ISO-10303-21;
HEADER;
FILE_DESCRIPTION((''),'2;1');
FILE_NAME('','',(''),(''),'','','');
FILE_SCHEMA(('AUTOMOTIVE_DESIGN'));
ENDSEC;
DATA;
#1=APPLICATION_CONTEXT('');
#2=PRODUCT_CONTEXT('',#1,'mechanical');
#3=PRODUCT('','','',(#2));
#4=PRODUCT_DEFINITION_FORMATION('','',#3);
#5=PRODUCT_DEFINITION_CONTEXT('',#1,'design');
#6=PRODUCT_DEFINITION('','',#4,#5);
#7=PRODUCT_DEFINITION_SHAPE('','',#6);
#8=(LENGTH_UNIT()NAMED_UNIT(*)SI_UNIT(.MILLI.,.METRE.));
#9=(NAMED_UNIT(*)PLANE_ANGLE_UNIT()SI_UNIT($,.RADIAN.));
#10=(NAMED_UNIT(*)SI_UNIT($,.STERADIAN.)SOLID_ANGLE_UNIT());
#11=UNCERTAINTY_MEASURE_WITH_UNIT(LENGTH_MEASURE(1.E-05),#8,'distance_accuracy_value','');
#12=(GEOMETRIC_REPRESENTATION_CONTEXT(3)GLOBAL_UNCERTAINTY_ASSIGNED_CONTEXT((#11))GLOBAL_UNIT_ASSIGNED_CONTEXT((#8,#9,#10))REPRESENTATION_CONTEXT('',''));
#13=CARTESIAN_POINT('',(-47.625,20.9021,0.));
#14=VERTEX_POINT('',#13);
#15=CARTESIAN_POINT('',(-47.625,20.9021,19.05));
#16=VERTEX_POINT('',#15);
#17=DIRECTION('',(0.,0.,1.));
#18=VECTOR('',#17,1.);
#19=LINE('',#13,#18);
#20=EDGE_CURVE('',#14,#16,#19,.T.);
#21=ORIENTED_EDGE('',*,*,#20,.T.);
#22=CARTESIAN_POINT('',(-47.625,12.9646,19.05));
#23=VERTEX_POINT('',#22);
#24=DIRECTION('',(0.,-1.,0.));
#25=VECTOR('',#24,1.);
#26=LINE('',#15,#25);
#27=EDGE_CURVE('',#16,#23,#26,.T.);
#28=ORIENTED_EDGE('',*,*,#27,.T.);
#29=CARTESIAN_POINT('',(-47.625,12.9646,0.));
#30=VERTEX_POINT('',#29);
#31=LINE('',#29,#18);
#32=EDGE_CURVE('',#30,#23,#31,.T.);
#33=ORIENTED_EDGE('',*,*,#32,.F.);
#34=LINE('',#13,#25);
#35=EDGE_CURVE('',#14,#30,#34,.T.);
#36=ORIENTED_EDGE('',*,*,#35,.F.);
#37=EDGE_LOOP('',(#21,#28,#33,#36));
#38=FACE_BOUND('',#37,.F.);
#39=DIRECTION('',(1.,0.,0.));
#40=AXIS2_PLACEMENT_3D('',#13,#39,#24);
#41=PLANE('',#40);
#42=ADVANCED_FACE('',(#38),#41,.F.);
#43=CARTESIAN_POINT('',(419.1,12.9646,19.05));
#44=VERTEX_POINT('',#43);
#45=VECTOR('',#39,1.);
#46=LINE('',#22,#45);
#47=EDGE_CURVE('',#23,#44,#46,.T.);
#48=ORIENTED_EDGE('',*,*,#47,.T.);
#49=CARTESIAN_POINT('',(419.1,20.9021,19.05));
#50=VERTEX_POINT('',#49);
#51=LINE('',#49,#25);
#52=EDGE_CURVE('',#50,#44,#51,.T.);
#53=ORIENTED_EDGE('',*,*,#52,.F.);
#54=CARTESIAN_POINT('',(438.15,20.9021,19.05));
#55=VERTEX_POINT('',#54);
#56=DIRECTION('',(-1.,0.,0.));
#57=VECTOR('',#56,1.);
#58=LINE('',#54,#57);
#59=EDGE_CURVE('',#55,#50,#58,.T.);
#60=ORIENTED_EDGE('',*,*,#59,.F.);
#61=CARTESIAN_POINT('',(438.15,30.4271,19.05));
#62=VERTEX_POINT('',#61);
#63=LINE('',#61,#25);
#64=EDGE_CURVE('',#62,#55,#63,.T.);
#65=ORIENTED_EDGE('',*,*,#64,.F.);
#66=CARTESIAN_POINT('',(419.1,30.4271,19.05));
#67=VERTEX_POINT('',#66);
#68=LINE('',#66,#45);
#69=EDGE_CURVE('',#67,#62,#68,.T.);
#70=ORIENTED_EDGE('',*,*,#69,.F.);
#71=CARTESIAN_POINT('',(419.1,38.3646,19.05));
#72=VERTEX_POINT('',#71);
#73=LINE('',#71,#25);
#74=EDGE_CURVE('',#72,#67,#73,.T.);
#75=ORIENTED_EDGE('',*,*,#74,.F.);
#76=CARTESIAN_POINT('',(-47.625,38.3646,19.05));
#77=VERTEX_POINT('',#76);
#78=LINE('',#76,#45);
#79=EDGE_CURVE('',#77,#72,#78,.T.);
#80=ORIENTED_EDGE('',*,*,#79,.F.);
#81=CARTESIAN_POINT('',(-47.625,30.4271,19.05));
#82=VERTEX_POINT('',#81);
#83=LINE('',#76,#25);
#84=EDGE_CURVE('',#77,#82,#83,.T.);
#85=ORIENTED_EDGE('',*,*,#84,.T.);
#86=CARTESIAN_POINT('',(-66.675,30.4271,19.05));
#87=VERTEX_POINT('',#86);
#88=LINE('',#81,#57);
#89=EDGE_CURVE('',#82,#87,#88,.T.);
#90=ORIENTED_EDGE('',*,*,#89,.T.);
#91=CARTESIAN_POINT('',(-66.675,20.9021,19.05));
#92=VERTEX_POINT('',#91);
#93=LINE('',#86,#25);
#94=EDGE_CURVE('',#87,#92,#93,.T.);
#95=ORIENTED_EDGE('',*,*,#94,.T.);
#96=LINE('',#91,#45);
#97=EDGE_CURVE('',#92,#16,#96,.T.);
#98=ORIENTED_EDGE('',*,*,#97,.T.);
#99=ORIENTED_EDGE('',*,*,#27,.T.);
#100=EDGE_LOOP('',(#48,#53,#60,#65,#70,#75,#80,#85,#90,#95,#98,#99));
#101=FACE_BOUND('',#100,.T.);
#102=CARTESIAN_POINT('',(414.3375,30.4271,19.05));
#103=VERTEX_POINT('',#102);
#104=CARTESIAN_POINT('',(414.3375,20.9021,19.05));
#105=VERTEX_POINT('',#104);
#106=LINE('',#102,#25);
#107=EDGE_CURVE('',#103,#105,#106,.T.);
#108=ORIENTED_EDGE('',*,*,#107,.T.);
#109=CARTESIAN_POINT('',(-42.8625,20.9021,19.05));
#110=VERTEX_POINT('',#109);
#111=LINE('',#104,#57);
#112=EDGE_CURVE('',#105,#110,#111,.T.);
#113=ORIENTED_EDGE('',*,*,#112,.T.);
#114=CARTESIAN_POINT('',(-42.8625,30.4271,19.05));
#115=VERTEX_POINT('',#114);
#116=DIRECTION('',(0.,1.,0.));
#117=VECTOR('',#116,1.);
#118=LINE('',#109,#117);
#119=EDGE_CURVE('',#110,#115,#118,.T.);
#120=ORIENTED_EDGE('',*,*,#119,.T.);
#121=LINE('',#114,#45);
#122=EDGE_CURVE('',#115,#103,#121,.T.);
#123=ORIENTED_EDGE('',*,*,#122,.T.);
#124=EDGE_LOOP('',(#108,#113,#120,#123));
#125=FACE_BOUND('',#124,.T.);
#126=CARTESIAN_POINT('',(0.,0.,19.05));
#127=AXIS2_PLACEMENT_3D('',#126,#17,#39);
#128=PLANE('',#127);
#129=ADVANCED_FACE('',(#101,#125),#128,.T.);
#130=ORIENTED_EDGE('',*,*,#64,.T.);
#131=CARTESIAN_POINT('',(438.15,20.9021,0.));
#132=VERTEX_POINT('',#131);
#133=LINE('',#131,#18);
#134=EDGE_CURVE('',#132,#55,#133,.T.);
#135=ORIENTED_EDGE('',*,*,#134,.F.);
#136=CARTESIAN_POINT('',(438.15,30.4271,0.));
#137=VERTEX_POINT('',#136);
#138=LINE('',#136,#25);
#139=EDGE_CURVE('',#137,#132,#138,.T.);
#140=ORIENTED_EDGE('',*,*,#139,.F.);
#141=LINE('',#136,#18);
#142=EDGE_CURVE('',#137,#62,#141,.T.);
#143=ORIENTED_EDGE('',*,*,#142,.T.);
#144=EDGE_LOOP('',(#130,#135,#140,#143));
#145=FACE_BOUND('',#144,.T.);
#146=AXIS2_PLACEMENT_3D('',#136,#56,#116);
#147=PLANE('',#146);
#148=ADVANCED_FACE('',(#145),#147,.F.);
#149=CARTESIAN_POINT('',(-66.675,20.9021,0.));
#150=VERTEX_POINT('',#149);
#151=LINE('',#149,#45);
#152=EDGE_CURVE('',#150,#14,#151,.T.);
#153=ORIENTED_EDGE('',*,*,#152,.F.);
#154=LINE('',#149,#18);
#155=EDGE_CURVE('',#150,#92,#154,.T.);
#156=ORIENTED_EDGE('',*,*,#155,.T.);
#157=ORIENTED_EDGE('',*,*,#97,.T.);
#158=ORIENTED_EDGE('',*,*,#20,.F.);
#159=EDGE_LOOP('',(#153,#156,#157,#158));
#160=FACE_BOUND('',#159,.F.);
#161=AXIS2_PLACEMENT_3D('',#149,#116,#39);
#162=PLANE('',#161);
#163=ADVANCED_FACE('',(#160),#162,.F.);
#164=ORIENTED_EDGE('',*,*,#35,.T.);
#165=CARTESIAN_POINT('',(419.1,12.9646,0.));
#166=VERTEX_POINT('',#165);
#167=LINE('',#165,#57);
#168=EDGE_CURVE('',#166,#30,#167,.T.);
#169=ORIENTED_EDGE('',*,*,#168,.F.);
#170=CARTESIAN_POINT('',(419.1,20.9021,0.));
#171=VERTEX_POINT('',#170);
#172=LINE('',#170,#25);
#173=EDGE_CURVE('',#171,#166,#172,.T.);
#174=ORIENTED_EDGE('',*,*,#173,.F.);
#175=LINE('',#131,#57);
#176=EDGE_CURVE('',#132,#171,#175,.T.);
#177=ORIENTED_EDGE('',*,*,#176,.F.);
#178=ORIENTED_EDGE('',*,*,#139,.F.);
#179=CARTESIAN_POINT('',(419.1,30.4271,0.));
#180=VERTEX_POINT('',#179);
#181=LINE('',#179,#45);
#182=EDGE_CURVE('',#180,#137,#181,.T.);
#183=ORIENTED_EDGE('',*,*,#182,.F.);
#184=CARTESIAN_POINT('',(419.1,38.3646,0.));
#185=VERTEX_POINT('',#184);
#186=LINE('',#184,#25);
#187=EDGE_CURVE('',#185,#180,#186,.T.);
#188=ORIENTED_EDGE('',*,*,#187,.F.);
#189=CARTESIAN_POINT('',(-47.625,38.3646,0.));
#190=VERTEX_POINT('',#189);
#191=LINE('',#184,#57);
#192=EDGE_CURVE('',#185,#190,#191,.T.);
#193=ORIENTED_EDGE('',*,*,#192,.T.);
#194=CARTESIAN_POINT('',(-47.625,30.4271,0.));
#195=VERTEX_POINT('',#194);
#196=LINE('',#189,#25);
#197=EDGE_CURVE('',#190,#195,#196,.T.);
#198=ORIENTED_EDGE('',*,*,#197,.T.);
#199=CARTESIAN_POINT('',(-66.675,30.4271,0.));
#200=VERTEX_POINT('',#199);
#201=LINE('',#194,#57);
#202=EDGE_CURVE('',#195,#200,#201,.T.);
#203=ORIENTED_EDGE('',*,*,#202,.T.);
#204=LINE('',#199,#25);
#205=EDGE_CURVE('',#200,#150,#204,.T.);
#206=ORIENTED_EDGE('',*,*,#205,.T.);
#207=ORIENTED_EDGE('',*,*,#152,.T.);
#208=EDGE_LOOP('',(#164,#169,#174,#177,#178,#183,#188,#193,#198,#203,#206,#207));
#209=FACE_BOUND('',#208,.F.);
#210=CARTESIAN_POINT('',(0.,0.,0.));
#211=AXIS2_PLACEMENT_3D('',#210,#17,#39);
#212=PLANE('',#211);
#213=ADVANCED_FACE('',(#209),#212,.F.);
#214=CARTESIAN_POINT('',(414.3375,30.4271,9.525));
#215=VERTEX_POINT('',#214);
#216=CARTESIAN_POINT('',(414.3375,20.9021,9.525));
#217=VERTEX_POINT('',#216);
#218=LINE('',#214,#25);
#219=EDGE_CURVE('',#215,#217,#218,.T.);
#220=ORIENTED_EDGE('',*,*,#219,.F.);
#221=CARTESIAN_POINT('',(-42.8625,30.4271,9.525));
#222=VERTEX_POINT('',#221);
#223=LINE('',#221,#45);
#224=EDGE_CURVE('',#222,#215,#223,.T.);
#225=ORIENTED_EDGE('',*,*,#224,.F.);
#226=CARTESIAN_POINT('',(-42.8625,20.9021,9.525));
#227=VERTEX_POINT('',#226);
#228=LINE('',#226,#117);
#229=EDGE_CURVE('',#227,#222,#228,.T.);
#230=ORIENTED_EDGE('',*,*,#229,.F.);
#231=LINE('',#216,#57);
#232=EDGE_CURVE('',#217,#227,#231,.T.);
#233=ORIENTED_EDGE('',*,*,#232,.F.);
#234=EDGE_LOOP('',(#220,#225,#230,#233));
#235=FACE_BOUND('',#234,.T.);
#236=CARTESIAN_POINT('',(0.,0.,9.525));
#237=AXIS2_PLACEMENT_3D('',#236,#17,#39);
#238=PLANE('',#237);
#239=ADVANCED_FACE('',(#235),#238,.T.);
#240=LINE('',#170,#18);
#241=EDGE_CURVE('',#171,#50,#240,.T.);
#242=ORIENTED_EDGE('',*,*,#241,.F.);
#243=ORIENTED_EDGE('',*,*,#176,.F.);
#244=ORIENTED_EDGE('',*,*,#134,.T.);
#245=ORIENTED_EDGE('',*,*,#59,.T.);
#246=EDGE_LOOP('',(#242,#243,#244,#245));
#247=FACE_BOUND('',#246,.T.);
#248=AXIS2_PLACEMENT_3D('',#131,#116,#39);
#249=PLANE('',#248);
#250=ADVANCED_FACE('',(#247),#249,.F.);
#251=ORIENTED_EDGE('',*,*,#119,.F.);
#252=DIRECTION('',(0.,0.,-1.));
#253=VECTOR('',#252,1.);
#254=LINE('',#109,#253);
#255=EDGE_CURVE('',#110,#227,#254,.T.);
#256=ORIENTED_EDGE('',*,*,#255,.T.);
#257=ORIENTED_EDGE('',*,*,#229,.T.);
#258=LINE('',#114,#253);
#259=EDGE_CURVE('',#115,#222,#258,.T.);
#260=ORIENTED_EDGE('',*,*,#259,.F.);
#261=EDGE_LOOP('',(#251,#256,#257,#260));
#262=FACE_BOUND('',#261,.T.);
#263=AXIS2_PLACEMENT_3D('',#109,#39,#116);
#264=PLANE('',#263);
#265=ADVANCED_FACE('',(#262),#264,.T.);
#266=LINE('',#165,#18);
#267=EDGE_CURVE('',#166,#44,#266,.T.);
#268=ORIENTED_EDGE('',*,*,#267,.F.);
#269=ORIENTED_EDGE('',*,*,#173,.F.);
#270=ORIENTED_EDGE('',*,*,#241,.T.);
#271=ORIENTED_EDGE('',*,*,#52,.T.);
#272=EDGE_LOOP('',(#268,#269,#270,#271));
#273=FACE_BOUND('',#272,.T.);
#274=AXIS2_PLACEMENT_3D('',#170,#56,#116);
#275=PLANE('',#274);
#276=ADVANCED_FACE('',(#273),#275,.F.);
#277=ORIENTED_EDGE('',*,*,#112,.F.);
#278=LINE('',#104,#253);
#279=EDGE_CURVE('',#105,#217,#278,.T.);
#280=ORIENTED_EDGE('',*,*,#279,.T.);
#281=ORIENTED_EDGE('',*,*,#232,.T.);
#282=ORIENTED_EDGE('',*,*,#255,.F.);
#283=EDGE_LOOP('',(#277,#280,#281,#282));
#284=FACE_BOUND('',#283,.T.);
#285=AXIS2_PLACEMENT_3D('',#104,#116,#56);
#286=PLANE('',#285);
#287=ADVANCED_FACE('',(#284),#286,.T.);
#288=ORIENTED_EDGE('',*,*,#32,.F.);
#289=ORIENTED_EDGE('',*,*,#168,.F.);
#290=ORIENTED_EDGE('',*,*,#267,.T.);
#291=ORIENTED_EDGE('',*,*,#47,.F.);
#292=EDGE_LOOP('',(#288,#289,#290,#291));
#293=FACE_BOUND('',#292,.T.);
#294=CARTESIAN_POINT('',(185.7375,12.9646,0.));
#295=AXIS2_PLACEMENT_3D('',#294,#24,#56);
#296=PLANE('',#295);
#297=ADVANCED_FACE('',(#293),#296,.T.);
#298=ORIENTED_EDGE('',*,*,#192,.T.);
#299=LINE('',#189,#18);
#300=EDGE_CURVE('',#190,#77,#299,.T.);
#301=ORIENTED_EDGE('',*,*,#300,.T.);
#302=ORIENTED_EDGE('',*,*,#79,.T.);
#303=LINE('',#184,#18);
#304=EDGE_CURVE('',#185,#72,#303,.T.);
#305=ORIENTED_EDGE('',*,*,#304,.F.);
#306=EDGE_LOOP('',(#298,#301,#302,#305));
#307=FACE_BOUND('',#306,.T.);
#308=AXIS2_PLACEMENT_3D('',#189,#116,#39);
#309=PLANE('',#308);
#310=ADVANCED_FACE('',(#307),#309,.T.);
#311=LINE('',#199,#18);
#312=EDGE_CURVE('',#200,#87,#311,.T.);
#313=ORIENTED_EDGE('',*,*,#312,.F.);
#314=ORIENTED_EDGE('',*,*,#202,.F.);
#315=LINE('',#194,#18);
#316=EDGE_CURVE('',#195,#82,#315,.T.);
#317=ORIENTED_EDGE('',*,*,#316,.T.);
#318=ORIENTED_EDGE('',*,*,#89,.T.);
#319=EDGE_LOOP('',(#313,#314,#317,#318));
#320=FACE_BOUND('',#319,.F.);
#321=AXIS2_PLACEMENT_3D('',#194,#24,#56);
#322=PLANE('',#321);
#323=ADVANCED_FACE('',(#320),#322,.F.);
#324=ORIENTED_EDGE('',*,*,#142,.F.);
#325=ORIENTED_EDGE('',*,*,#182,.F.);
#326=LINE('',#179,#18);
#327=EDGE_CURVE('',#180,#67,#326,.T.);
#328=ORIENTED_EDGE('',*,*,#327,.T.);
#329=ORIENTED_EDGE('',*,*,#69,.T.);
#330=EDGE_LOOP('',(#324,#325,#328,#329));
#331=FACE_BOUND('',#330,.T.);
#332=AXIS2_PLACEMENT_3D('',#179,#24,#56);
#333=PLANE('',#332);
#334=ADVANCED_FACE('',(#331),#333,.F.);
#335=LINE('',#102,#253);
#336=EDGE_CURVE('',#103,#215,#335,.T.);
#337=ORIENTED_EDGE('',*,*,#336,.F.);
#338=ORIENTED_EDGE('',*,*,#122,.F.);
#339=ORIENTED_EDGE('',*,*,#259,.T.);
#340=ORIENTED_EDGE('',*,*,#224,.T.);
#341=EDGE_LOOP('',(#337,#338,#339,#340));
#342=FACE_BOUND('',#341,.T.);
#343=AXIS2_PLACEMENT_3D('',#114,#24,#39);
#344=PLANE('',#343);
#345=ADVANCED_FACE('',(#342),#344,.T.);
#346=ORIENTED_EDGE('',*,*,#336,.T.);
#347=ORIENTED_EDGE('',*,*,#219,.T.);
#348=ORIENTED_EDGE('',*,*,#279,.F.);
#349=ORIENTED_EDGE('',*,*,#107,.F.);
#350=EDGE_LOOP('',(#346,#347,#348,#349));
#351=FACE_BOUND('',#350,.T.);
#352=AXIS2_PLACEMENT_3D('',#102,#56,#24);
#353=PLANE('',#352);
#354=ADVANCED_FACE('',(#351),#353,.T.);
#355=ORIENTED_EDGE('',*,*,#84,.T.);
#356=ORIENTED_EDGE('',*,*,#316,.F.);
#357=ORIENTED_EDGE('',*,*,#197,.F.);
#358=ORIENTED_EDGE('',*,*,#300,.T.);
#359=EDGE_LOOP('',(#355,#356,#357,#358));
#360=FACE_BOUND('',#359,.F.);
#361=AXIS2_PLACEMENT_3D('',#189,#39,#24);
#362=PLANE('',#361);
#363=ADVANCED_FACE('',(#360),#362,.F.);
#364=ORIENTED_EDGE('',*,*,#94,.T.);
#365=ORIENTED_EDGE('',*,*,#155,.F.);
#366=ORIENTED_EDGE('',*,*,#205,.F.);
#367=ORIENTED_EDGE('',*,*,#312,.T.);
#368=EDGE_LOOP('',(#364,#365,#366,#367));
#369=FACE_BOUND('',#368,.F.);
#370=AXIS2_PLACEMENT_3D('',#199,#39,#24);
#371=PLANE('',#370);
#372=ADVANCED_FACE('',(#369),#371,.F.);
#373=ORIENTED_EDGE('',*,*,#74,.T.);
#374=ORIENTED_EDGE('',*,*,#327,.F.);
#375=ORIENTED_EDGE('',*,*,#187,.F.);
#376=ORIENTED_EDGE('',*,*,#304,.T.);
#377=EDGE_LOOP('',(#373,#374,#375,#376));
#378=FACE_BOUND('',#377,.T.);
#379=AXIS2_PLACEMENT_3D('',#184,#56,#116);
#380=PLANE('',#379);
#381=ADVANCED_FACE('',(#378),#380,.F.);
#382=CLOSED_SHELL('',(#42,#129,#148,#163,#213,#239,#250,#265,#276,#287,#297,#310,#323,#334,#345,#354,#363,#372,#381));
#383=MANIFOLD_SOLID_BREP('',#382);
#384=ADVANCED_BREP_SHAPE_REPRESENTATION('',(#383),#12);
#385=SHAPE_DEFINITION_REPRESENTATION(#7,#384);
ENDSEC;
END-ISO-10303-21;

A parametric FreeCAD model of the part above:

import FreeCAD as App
import Part
import Sketcher

V = App.Vector
Q = App.Units.Quantity

doc = App.newDocument("Part")
params = doc.addObject("Spreadsheet::Sheet", "Params")
for row, (alias, value) in enumerate([
    ("sketch1_height", "1 in"),
    ("sketch1_width", "0.75 in"),
    ("sketch1_height2", "0.3125 in"),
    ("pad1_length", "0.75 in"),
    ("sketch2_width", "18 in"),
    ("sketch2_height", "0.375 in"),
    ("pocket1_length", "0.375 in"),
], start=1):
    params.set(f"A{row}", alias)
    params.set(f"B{row}", "=" + value)
    params.setAlias(f"B{row}", alias)

body = doc.addObject("PartDesign::Body", "Body")

# Sketch on XY plane
sketch1 = body.newObject("Sketcher::SketchObject", "Sketch")
sketch1.AttachmentSupport = (doc.getObject("XY_Plane"), [""])
sketch1.MapMode = "FlatFace"
sketch1.addGeometry([
    Part.LineSegment(V(186, 38, 0), V(-48, 38, 0)),  # 0
    Part.LineSegment(V(-48, 38, 0), V(-48, 30, 0)),  # 1
    Part.LineSegment(V(-48, 30, 0), V(-67, 30, 0)),  # 2
    Part.LineSegment(V(-67, 30, 0), V(-67, 21, 0)),  # 3
    Part.LineSegment(V(-67, 21, 0), V(-48, 21, 0)),  # 4
    Part.LineSegment(V(-48, 21, 0), V(-48, 13, 0)),  # 5
    Part.LineSegment(V(-48, 13, 0), V(186, 13, 0)),  # 6
    Part.LineSegment(V(186, 13, 0), V(186, 38, 0)),  # 7
], False)
sketch1.addConstraint([
    Sketcher.Constraint("Coincident", 0, 2, 1, 1),
    Sketcher.Constraint("Coincident", 1, 2, 2, 1),
    Sketcher.Constraint("Coincident", 2, 2, 3, 1),
    Sketcher.Constraint("Coincident", 3, 2, 4, 1),
    Sketcher.Constraint("Coincident", 4, 2, 5, 1),
    Sketcher.Constraint("Coincident", 5, 2, 6, 1),
    Sketcher.Constraint("Coincident", 6, 2, 7, 1),
    Sketcher.Constraint("Coincident", 7, 2, 0, 1),
    Sketcher.Constraint("Horizontal", 0),
    Sketcher.Constraint("Vertical", 1),
    Sketcher.Constraint("Horizontal", 2),
    Sketcher.Constraint("Vertical", 3),
    Sketcher.Constraint("Horizontal", 4),
    Sketcher.Constraint("Vertical", 5),
    Sketcher.Constraint("Horizontal", 6),
    Sketcher.Constraint("Vertical", 7),
    Sketcher.Constraint("Vertical", 1, 2, 4, 2),
    Sketcher.Constraint("Equal", 1, 5),
    Sketcher.Constraint("DistanceY", 7, 1, 7, 2, Q("1 in")),
    Sketcher.Constraint("DistanceX", 2, 2, 2, 1, Q("0.75 in")),
    Sketcher.Constraint("DistanceY", 1, 2, 1, 1, Q("0.3125 in")),
    Sketcher.Constraint("DistanceX", 3, 2, 6, 2, Q("9.9375 in")),
    Sketcher.Constraint("DistanceX", 0, 2, -1, 1, Q("1.875 in")),
    Sketcher.Constraint("DistanceY", -1, 1, 0, 2, 38.3646),
])
sketch1.setExpression("Constraints[18]", "Params.sketch1_height")
sketch1.setExpression("Constraints[19]", "Params.sketch1_width")
sketch1.setExpression("Constraints[20]", "Params.sketch1_height2")
pad1 = body.newObject("PartDesign::Pad", "Pad")
pad1.Profile = sketch1
pad1.setExpression("Length", "Params.pad1_length")
doc.recompute()

datumplane = body.newObject("PartDesign::Plane", "DatumPlane")
datumplane.AttachmentSupport = (doc.getObject("YZ_Plane"), [""])
datumplane.MapMode = "FlatFace"
datumplane.AttachmentOffset = App.Placement(V(0, 0, 7.3125 * 25.4), App.Rotation())
mirrored = body.newObject("PartDesign::Mirrored", "Mirrored")
mirrored.Originals = [pad1]
mirrored.MirrorPlane = (datumplane, [""])
body.Tip = mirrored

# Sketch on XY plane
sketch2 = body.newObject("Sketcher::SketchObject", "Sketch001")
sketch2.AttachmentSupport = (doc.getObject("XY_Plane"), [""])
sketch2.MapMode = "FlatFace"
sketch2.AttachmentOffset = App.Placement(V(0, 0, 0.75 * 25.4), App.Rotation())
sketch2.addGeometry([
    Part.LineSegment(V(414, 30, 0), V(-43, 30, 0)),
    Part.LineSegment(V(-43, 30, 0), V(-43, 21, 0)),
    Part.LineSegment(V(-43, 21, 0), V(414, 21, 0)),
    Part.LineSegment(V(414, 21, 0), V(414, 30, 0)),
], False)
sketch2.addConstraint([
    Sketcher.Constraint("Coincident", 0, 2, 1, 1),
    Sketcher.Constraint("Coincident", 1, 2, 2, 1),
    Sketcher.Constraint("Coincident", 2, 2, 3, 1),
    Sketcher.Constraint("Coincident", 3, 2, 0, 1),
    Sketcher.Constraint("Horizontal", 0),
    Sketcher.Constraint("Vertical", 1),
    Sketcher.Constraint("Horizontal", 2),
    Sketcher.Constraint("Vertical", 3),
    Sketcher.Constraint("DistanceX", 0, 2, 0, 1, Q("18 in")),
    Sketcher.Constraint("DistanceY", 1, 2, 1, 1, Q("0.375 in")),
    Sketcher.Constraint("DistanceX", 0, 2, -1, 1, Q("1.6875 in")),
    Sketcher.Constraint("DistanceY", -1, 1, 0, 2, 30.427),
])
sketch2.setExpression("Constraints[8]", "Params.sketch2_width")
sketch2.setExpression("Constraints[9]", "Params.sketch2_height")
pocket1 = body.newObject("PartDesign::Pocket", "Pocket")
pocket1.Profile = sketch2
pocket1.setExpression("Length", "Params.pocket1_length")

doc.recompute()
